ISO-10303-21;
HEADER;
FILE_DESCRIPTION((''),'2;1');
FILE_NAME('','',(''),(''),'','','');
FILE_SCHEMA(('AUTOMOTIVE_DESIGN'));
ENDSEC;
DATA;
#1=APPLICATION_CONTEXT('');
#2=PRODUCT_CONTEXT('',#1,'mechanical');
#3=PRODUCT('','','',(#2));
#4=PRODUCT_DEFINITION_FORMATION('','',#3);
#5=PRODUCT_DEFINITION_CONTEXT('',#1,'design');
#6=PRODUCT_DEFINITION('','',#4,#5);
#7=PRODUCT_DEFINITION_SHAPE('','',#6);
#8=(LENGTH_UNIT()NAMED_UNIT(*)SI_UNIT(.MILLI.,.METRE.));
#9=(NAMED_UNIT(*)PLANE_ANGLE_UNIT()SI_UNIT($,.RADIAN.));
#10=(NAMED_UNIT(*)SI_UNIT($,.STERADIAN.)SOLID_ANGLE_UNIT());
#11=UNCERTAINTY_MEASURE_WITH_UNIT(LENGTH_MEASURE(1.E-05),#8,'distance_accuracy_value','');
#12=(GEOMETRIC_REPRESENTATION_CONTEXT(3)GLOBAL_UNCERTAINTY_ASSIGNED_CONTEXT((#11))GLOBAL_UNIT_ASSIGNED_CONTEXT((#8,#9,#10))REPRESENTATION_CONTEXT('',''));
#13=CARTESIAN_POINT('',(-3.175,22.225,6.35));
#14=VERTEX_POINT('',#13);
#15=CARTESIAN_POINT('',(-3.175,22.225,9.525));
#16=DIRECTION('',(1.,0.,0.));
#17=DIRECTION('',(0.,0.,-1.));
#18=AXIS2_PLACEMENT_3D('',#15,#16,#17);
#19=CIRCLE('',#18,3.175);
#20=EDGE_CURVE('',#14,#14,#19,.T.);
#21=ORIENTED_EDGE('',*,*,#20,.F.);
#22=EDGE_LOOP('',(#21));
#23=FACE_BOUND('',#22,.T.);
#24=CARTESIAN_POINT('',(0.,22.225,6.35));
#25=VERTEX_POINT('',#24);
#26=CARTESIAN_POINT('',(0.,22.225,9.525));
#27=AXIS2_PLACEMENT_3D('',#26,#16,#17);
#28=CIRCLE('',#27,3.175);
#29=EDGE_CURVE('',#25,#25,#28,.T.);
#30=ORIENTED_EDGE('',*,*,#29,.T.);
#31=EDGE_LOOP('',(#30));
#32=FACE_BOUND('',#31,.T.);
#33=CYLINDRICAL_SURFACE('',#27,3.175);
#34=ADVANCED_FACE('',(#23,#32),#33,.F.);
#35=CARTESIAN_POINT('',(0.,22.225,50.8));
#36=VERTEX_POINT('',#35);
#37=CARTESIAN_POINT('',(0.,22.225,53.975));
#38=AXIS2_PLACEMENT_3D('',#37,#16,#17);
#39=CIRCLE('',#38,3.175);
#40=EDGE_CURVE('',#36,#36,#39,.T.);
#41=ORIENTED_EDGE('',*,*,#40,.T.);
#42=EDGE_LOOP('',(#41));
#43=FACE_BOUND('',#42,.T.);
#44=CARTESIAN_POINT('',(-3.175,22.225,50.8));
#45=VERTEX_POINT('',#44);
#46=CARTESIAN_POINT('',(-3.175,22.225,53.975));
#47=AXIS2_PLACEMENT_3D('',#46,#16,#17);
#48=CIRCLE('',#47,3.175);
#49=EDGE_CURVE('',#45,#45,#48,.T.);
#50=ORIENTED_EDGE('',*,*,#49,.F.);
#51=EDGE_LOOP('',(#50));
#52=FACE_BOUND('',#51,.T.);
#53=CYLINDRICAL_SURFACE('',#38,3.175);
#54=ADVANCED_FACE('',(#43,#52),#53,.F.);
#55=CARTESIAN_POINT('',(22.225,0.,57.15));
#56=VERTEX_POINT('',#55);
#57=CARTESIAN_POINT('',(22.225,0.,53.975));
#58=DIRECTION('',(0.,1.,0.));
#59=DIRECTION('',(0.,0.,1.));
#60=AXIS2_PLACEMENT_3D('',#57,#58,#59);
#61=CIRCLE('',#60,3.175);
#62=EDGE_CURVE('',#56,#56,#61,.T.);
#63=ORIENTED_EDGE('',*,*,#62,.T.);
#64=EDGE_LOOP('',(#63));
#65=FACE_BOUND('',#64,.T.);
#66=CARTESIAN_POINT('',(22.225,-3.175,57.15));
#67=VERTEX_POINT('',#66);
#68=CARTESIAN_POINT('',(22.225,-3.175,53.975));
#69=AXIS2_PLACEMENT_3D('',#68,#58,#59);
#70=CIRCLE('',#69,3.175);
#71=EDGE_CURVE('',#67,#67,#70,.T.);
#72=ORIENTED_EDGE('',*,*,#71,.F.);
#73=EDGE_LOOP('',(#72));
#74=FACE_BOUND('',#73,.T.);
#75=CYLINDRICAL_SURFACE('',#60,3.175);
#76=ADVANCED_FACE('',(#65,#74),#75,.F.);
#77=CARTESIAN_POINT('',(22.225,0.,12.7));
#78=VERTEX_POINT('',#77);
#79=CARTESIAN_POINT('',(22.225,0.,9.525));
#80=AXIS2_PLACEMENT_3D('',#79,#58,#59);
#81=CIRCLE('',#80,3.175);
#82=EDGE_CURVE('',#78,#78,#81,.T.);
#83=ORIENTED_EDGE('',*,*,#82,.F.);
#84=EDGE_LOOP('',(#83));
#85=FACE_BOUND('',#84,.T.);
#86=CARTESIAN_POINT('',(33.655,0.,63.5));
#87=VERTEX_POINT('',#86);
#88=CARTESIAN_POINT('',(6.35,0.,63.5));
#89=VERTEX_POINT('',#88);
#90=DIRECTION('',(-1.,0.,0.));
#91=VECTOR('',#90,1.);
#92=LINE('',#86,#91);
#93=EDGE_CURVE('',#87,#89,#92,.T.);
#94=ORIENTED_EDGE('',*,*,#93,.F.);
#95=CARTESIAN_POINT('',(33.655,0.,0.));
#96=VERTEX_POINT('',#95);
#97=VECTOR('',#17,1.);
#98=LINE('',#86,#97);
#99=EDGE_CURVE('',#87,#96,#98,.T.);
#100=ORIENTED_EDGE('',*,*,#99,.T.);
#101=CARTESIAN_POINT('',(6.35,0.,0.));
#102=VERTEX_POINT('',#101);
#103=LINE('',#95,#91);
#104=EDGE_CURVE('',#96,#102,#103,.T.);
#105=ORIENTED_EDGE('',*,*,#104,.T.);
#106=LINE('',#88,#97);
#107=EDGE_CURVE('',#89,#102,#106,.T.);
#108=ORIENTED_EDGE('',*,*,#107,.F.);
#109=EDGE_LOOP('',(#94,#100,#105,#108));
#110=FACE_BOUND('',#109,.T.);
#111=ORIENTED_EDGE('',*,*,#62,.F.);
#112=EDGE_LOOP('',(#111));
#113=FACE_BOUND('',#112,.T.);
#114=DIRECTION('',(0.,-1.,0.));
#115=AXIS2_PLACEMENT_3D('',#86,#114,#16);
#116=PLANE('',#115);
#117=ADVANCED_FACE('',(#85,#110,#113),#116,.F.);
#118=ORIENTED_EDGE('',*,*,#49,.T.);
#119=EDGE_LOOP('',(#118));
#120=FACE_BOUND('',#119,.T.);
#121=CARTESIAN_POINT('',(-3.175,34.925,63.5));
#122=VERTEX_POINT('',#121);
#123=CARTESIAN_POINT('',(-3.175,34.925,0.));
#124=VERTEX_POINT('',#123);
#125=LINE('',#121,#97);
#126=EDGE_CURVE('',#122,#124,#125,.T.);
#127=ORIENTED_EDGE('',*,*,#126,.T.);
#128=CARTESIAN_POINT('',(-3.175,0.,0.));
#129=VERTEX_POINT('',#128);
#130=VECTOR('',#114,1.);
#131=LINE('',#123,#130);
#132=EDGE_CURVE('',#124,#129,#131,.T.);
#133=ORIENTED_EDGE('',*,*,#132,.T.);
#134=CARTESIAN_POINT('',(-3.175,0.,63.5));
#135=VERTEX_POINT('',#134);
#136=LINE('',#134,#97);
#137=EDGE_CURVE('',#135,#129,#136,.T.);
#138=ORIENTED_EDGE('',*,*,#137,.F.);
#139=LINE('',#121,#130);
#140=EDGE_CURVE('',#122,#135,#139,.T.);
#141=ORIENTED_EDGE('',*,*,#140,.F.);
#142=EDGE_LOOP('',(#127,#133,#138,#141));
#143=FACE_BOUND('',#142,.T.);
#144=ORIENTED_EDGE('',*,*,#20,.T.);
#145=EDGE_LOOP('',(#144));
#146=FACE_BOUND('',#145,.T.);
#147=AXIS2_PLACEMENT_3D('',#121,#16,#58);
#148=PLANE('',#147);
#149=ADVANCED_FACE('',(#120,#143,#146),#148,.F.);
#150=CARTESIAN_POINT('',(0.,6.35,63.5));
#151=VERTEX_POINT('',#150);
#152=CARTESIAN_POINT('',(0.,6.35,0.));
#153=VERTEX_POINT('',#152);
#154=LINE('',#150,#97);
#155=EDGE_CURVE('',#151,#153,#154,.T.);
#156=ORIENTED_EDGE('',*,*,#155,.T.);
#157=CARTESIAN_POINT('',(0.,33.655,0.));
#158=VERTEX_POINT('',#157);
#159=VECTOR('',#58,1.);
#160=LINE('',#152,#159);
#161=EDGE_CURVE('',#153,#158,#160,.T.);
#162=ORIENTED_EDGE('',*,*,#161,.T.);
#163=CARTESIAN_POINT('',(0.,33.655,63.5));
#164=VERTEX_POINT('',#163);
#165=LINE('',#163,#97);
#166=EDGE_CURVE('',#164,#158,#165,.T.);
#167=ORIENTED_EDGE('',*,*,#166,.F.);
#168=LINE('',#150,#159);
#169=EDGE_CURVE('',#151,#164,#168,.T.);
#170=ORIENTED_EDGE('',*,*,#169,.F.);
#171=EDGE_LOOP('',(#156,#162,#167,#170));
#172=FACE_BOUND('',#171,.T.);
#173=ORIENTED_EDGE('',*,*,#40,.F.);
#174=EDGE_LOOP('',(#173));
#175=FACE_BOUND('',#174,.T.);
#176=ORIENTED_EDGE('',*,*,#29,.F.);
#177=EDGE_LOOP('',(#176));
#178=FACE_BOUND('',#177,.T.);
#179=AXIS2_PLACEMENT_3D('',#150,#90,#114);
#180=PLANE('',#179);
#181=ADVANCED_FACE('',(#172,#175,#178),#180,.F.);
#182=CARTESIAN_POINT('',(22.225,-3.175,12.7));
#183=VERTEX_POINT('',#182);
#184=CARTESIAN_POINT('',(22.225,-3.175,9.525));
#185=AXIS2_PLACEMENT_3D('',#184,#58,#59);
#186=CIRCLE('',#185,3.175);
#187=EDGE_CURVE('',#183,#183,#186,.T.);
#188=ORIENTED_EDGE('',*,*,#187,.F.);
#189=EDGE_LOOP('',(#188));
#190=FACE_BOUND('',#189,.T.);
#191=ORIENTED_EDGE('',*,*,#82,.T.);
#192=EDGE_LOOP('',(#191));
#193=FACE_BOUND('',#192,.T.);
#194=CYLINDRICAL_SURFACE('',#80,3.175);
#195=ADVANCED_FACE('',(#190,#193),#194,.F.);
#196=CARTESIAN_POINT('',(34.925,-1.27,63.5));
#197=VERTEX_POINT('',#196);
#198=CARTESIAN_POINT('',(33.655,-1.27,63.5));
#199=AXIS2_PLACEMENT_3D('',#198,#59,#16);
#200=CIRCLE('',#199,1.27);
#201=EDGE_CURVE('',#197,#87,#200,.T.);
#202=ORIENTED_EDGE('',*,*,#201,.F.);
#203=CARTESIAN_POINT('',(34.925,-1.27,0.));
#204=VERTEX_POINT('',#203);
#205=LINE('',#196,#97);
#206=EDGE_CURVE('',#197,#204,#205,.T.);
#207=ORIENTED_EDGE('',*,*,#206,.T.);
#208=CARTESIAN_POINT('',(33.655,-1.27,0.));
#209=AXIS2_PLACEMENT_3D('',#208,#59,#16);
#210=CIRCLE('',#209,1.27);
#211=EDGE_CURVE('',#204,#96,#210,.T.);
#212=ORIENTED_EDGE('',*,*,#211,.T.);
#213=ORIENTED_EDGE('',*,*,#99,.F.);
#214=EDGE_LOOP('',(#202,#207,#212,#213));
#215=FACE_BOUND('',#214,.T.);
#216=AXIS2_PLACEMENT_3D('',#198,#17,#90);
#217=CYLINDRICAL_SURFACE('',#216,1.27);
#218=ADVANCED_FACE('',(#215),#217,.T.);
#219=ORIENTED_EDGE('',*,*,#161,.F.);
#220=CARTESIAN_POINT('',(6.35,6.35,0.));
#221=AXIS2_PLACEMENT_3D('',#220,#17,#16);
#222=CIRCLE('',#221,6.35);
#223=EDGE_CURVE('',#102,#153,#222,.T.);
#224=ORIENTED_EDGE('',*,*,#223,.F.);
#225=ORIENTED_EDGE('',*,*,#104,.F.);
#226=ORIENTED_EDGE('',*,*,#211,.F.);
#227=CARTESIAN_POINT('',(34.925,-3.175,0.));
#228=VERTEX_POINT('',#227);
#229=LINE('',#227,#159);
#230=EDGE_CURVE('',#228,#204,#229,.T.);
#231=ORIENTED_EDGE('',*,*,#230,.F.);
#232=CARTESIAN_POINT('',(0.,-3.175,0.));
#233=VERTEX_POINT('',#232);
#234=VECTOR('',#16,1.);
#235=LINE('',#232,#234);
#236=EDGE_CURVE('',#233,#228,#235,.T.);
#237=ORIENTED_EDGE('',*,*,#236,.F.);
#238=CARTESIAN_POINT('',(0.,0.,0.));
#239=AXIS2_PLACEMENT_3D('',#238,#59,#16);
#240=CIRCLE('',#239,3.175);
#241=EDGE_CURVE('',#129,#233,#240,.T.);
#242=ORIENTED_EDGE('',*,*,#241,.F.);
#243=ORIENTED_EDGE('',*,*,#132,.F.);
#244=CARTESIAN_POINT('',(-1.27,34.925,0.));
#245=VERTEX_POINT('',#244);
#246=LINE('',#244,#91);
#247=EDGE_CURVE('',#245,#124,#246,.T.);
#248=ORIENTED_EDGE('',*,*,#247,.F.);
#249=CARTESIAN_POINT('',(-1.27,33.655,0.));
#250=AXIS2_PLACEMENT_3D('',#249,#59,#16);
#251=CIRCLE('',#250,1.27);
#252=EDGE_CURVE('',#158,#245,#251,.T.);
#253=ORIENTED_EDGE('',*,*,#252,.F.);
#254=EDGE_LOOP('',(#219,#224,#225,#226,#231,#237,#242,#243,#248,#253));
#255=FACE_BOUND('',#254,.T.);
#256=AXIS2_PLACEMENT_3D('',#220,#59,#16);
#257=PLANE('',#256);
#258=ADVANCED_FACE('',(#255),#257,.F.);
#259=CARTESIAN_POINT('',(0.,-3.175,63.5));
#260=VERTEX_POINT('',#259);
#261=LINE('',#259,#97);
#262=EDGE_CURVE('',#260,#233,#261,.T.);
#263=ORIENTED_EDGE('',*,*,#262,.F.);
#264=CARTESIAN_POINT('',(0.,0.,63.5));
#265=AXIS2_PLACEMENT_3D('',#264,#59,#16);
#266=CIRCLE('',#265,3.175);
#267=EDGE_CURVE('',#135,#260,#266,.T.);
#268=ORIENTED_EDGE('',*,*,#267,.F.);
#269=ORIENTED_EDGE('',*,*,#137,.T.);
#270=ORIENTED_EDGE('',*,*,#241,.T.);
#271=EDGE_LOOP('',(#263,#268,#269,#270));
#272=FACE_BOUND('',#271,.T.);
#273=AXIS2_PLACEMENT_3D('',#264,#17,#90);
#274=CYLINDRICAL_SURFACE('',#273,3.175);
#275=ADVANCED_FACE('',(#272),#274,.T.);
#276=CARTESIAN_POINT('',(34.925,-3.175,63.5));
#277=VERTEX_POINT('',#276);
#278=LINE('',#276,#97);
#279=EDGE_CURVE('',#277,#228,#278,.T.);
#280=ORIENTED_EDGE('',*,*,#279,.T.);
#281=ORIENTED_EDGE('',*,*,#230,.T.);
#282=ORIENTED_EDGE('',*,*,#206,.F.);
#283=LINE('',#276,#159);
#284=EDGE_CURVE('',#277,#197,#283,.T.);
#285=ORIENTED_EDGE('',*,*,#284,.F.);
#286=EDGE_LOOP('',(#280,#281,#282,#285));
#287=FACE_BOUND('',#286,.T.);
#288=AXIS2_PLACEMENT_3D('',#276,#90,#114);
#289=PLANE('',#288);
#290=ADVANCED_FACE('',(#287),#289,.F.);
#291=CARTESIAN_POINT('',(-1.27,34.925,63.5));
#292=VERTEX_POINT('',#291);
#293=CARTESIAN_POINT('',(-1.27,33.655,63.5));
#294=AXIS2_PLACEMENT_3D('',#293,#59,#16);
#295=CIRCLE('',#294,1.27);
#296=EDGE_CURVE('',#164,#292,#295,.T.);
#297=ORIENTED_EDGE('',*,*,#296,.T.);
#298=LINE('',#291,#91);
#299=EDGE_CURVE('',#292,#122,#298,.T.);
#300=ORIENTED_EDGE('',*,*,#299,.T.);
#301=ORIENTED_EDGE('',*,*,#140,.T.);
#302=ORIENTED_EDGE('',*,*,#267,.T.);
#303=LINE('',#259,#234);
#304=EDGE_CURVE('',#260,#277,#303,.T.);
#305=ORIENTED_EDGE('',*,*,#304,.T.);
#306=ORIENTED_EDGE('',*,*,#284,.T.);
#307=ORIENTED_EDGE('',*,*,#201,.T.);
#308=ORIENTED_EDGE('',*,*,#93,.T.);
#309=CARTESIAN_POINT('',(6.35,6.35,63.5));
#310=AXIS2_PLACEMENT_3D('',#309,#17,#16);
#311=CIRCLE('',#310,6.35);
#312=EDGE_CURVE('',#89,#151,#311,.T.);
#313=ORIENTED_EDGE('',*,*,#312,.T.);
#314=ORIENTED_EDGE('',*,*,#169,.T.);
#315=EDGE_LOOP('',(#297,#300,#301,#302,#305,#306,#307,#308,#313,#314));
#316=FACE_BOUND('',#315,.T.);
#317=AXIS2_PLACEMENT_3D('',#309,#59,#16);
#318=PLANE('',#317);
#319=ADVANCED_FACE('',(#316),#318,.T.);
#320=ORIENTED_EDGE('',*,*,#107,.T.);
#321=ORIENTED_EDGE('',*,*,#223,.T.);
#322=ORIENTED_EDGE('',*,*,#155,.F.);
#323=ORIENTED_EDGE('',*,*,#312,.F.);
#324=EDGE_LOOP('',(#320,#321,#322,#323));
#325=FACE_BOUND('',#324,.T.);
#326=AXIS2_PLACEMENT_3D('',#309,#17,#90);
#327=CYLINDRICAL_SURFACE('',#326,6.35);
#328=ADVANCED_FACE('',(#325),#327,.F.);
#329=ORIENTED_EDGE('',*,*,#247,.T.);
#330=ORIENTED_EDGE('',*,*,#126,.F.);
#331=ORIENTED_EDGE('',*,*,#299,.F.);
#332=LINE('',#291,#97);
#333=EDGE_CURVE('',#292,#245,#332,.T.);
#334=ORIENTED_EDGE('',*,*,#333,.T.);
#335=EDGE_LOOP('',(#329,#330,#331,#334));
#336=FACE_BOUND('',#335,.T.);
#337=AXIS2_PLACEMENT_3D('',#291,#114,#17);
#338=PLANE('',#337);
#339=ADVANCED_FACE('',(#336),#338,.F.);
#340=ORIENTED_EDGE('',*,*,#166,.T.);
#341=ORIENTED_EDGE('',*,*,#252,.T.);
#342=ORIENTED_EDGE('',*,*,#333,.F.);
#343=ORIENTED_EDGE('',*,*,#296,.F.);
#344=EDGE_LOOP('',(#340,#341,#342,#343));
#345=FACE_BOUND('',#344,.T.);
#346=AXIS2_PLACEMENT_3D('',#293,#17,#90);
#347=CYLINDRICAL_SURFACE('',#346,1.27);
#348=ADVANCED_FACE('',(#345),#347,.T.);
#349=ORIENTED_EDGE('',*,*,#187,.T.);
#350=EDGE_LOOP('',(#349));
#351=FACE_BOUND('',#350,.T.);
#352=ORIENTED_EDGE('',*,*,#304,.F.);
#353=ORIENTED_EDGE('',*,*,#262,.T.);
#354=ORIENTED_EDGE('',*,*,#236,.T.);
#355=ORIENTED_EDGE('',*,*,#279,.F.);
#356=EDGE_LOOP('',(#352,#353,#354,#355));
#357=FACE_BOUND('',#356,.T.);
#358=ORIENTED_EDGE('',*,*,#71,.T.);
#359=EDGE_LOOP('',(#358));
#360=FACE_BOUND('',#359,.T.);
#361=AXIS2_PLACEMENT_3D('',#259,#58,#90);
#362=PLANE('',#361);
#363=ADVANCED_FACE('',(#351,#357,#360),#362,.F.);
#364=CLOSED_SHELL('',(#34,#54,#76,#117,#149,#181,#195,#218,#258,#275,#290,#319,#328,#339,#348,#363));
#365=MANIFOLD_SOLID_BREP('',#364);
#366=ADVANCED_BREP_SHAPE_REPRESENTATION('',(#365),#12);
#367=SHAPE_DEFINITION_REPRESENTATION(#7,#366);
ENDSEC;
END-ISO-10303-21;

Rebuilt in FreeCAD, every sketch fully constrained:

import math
import FreeCAD as App
import Part
import Sketcher

V = App.Vector
Q = App.Units.Quantity

doc = App.newDocument("Part")
params = doc.addObject("Spreadsheet::Sheet", "Params")
for row, (alias, value) in enumerate([
    ("sketch1_radius", "0.05 in"),
    ("sketch1_radius2", "0.25 in"),
    ("sketch1_radius3", "0.125 in"),
    ("pad1_length", "2.5 in"),
    ("sketch2_diameter", "0.25 in"),
    ("hole_diameter", "0.25 in"),
    ("sketch3_diameter", "0.25 in"),
    ("hole2_diameter", "0.25 in"),
], start=1):
    params.set(f"A{row}", alias)
    params.set(f"B{row}", "=" + value)
    params.setAlias(f"B{row}", alias)

body = doc.addObject("PartDesign::Body", "Body")

# Sketch on XY plane
sketch1 = doc.addObject("Sketcher::SketchObject", "Sketch")
body.addObject(sketch1)
sketch1.AttachmentSupport = (doc.XY_Plane, [""])
sketch1.MapMode = "FlatFace"
sketch1.addGeometry([
    Part.LineSegment(V(0, 6.3, 0), V(0, 33.7, 0)),  # 0
    Part.ArcOfCircle(Part.Circle(V(-1.3, 33.7, 0), V(0, 0, 1), 1.3), math.radians(0), math.radians(90)),  # 1
    Part.LineSegment(V(-1.3, 34.9, 0), V(-3.2, 34.9, 0)),  # 2
    Part.LineSegment(V(-3.2, 34.9, 0), V(-3.2, 0, 0)),  # 3
    Part.ArcOfCircle(Part.Circle(V(0, 0, 0), V(0, 0, 1), 3.2), math.radians(-180), math.radians(-90)),  # 4
    Part.LineSegment(V(0, -3.2, 0), V(34.9, -3.2, 0)),  # 5
    Part.LineSegment(V(34.9, -3.2, 0), V(34.9, -1.3, 0)),  # 6
    Part.ArcOfCircle(Part.Circle(V(33.7, -1.3, 0), V(0, 0, 1), 1.3), math.radians(0), math.radians(90)),  # 7
    Part.LineSegment(V(33.7, 0, 0), V(6.3, 0, 0)),  # 8
    Part.ArcOfCircle(Part.Circle(V(6.3, 6.3, 0), V(0, 0, 1), 6.3), math.radians(180), math.radians(270)),  # 9
], False)
sketch1.addConstraint([
    Sketcher.Constraint("Tangent", 0, 2, 1, 1),
    Sketcher.Constraint("Tangent", 1, 2, 2, 1),
    Sketcher.Constraint("Coincident", 2, 2, 3, 1),
    Sketcher.Constraint("Tangent", 3, 2, 4, 1),
    Sketcher.Constraint("Tangent", 4, 2, 5, 1),
    Sketcher.Constraint("Coincident", 5, 2, 6, 1),
    Sketcher.Constraint("Tangent", 6, 2, 7, 1),
    Sketcher.Constraint("Tangent", 7, 2, 8, 1),
    Sketcher.Constraint("Tangent", 8, 2, 9, 2),
    Sketcher.Constraint("Tangent", 9, 1, 0, 1),
    Sketcher.Constraint("Vertical", 0),
    Sketcher.Constraint("Horizontal", 2),
    Sketcher.Constraint("Vertical", 3),
    Sketcher.Constraint("Horizontal", 5),
    Sketcher.Constraint("Vertical", 6),
    Sketcher.Constraint("Horizontal", 8),
    Sketcher.Constraint("Coincident", 4, 3, -1, 1),
    Sketcher.Constraint("Equal", 1, 7),
    Sketcher.Constraint("PointOnObject", 0, 2, -2),
    Sketcher.Constraint("PointOnObject", 7, 2, -1),
    Sketcher.Constraint("Equal", 8, 0),
    Sketcher.Constraint("Radius", 1, Q("0.05 in")),
    Sketcher.Constraint("Radius", 9, Q("0.25 in")),
    Sketcher.Constraint("Radius", 4, Q("0.125 in")),
    Sketcher.Constraint("DistanceX", 3, 2, 5, 2, Q("1.5 in")),
])
sketch1.setExpression("Constraints[21]", "Params.sketch1_radius")
sketch1.setExpression("Constraints[22]", "Params.sketch1_radius2")
sketch1.setExpression("Constraints[23]", "Params.sketch1_radius3")
pad1 = doc.addObject("PartDesign::Pad", "Pad")
body.addObject(pad1)
pad1.Profile = sketch1
pad1.setExpression("Length", "Params.pad1_length")

# Sketch on XZ plane
sketch2 = doc.addObject("Sketcher::SketchObject", "Sketch001")
body.addObject(sketch2)
sketch2.AttachmentSupport = (doc.XZ_Plane, [""])
sketch2.MapMode = "FlatFace"
sketch2.addGeometry([
    Part.Circle(V(22.2, 54, 0), V(0, 0, 1), 3.2),
    Part.Circle(V(22.2, 9.5, 0), V(0, 0, 1), 3.2),
], False)
sketch2.addConstraint([
    Sketcher.Constraint("Equal", 0, 1),
    Sketcher.Constraint("Vertical", 0, 3, 1, 3),
    Sketcher.Constraint("Diameter", 0, Q("0.25 in")),
    Sketcher.Constraint("DistanceY", 1, 3, 0, 3, Q("1.75 in")),
    Sketcher.Constraint("DistanceX", -1, 1, 0, 3, Q("0.875 in")),
    Sketcher.Constraint("DistanceY", -1, 1, 0, 3, Q("2.125 in")),
])
sketch2.setExpression("Constraints[2]", "Params.sketch2_diameter")
doc.recompute()
hole = doc.addObject("PartDesign::Hole", "Hole")
body.addObject(hole)
hole.Profile = sketch2
hole.ThreadType = "None"
hole.setExpression("Diameter", "Params.hole_diameter")
hole.DepthType = "ThroughAll"
hole.Reversed = True

# Sketch on YZ plane
sketch3 = doc.addObject("Sketcher::SketchObject", "Sketch002")
body.addObject(sketch3)
sketch3.AttachmentSupport = (doc.YZ_Plane, [""])
sketch3.MapMode = "FlatFace"
sketch3.addGeometry([
    Part.Circle(V(22.2, 9.5, 0), V(0, 0, 1), 3.2),
    Part.Circle(V(22.2, 54, 0), V(0, 0, 1), 3.2),
], False)
sketch3.addConstraint([
    Sketcher.Constraint("Equal", 0, 1),
    Sketcher.Constraint("Vertical", 0, 3, 1, 3),
    Sketcher.Constraint("Diameter", 0, Q("0.25 in")),
    Sketcher.Constraint("DistanceY", 0, 3, 1, 3, Q("1.75 in")),
    Sketcher.Constraint("DistanceX", -1, 1, 0, 3, Q("0.875 in")),
    Sketcher.Constraint("DistanceY", -1, 1, 0, 3, Q("0.375 in")),
])
sketch3.setExpression("Constraints[2]", "Params.sketch3_diameter")
doc.recompute()
hole2 = doc.addObject("PartDesign::Hole", "Hole001")
body.addObject(hole2)
hole2.Profile = sketch3
hole2.ThreadType = "None"
hole2.setExpression("Diameter", "Params.hole2_diameter")
hole2.DepthType = "ThroughAll"

doc.recompute()
